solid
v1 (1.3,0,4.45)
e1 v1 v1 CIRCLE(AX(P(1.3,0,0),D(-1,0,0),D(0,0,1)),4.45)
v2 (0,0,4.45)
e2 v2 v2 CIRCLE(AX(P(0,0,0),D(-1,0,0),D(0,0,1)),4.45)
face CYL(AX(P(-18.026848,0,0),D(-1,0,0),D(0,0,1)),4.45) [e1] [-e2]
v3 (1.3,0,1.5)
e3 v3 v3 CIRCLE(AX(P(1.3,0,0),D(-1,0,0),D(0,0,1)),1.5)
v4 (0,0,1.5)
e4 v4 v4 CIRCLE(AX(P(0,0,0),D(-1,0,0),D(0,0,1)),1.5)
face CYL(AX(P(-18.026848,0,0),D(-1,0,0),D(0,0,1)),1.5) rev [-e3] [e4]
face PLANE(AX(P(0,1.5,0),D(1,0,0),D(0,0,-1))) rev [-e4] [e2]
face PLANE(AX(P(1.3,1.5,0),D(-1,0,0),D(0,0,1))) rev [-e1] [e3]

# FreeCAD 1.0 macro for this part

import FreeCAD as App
import Part
import Sketcher
from FreeCAD import Vector

doc = App.newDocument("Part")
body = doc.addObject("PartDesign::Body", "Body")

# Sketch on XY plane
sketch1 = doc.addObject("Sketcher::SketchObject", "Sketch")
body.addObject(sketch1)
sketch1.AttachmentSupport = (doc.XY_Plane, [""])
sketch1.MapMode = "FlatFace"
sketch1.addGeometry([
    Part.LineSegment(Vector(0, 4.45, 0), Vector(0, 1.5, 0)),
    Part.LineSegment(Vector(0, 1.5, 0), Vector(1.3, 1.5, 0)),
    Part.LineSegment(Vector(1.3, 1.5, 0), Vector(1.3, 4.45, 0)),
    Part.LineSegment(Vector(1.3, 4.45, 0), Vector(0, 4.45, 0)),
], False)
sketch1.addConstraint([
    Sketcher.Constraint("Coincident", 0, 2, 1, 1),
    Sketcher.Constraint("Coincident", 1, 2, 2, 1),
    Sketcher.Constraint("Coincident", 2, 2, 3, 1),
    Sketcher.Constraint("Coincident", 3, 2, 0, 1),
    Sketcher.Constraint("Vertical", 0),
    Sketcher.Constraint("Horizontal", 1),
    Sketcher.Constraint("Vertical", 2),
    Sketcher.Constraint("Horizontal", 3),
    Sketcher.Constraint("PointOnObject", 0, 2, -2),
    Sketcher.Constraint("DistanceX", 1, 1, 1, 2, 1.3),
    Sketcher.Constraint("DistanceY", 0, 2, 0, 1, 2.95),
    Sketcher.Constraint("DistanceY", -1, 1, 0, 2, 1.5),
])
revolution = doc.addObject("PartDesign::Revolution", "Revolution")
body.addObject(revolution)
revolution.Profile = sketch1
revolution.ReferenceAxis = (sketch1, ["H_Axis"])
revolution.Angle = 360

doc.recompute()
